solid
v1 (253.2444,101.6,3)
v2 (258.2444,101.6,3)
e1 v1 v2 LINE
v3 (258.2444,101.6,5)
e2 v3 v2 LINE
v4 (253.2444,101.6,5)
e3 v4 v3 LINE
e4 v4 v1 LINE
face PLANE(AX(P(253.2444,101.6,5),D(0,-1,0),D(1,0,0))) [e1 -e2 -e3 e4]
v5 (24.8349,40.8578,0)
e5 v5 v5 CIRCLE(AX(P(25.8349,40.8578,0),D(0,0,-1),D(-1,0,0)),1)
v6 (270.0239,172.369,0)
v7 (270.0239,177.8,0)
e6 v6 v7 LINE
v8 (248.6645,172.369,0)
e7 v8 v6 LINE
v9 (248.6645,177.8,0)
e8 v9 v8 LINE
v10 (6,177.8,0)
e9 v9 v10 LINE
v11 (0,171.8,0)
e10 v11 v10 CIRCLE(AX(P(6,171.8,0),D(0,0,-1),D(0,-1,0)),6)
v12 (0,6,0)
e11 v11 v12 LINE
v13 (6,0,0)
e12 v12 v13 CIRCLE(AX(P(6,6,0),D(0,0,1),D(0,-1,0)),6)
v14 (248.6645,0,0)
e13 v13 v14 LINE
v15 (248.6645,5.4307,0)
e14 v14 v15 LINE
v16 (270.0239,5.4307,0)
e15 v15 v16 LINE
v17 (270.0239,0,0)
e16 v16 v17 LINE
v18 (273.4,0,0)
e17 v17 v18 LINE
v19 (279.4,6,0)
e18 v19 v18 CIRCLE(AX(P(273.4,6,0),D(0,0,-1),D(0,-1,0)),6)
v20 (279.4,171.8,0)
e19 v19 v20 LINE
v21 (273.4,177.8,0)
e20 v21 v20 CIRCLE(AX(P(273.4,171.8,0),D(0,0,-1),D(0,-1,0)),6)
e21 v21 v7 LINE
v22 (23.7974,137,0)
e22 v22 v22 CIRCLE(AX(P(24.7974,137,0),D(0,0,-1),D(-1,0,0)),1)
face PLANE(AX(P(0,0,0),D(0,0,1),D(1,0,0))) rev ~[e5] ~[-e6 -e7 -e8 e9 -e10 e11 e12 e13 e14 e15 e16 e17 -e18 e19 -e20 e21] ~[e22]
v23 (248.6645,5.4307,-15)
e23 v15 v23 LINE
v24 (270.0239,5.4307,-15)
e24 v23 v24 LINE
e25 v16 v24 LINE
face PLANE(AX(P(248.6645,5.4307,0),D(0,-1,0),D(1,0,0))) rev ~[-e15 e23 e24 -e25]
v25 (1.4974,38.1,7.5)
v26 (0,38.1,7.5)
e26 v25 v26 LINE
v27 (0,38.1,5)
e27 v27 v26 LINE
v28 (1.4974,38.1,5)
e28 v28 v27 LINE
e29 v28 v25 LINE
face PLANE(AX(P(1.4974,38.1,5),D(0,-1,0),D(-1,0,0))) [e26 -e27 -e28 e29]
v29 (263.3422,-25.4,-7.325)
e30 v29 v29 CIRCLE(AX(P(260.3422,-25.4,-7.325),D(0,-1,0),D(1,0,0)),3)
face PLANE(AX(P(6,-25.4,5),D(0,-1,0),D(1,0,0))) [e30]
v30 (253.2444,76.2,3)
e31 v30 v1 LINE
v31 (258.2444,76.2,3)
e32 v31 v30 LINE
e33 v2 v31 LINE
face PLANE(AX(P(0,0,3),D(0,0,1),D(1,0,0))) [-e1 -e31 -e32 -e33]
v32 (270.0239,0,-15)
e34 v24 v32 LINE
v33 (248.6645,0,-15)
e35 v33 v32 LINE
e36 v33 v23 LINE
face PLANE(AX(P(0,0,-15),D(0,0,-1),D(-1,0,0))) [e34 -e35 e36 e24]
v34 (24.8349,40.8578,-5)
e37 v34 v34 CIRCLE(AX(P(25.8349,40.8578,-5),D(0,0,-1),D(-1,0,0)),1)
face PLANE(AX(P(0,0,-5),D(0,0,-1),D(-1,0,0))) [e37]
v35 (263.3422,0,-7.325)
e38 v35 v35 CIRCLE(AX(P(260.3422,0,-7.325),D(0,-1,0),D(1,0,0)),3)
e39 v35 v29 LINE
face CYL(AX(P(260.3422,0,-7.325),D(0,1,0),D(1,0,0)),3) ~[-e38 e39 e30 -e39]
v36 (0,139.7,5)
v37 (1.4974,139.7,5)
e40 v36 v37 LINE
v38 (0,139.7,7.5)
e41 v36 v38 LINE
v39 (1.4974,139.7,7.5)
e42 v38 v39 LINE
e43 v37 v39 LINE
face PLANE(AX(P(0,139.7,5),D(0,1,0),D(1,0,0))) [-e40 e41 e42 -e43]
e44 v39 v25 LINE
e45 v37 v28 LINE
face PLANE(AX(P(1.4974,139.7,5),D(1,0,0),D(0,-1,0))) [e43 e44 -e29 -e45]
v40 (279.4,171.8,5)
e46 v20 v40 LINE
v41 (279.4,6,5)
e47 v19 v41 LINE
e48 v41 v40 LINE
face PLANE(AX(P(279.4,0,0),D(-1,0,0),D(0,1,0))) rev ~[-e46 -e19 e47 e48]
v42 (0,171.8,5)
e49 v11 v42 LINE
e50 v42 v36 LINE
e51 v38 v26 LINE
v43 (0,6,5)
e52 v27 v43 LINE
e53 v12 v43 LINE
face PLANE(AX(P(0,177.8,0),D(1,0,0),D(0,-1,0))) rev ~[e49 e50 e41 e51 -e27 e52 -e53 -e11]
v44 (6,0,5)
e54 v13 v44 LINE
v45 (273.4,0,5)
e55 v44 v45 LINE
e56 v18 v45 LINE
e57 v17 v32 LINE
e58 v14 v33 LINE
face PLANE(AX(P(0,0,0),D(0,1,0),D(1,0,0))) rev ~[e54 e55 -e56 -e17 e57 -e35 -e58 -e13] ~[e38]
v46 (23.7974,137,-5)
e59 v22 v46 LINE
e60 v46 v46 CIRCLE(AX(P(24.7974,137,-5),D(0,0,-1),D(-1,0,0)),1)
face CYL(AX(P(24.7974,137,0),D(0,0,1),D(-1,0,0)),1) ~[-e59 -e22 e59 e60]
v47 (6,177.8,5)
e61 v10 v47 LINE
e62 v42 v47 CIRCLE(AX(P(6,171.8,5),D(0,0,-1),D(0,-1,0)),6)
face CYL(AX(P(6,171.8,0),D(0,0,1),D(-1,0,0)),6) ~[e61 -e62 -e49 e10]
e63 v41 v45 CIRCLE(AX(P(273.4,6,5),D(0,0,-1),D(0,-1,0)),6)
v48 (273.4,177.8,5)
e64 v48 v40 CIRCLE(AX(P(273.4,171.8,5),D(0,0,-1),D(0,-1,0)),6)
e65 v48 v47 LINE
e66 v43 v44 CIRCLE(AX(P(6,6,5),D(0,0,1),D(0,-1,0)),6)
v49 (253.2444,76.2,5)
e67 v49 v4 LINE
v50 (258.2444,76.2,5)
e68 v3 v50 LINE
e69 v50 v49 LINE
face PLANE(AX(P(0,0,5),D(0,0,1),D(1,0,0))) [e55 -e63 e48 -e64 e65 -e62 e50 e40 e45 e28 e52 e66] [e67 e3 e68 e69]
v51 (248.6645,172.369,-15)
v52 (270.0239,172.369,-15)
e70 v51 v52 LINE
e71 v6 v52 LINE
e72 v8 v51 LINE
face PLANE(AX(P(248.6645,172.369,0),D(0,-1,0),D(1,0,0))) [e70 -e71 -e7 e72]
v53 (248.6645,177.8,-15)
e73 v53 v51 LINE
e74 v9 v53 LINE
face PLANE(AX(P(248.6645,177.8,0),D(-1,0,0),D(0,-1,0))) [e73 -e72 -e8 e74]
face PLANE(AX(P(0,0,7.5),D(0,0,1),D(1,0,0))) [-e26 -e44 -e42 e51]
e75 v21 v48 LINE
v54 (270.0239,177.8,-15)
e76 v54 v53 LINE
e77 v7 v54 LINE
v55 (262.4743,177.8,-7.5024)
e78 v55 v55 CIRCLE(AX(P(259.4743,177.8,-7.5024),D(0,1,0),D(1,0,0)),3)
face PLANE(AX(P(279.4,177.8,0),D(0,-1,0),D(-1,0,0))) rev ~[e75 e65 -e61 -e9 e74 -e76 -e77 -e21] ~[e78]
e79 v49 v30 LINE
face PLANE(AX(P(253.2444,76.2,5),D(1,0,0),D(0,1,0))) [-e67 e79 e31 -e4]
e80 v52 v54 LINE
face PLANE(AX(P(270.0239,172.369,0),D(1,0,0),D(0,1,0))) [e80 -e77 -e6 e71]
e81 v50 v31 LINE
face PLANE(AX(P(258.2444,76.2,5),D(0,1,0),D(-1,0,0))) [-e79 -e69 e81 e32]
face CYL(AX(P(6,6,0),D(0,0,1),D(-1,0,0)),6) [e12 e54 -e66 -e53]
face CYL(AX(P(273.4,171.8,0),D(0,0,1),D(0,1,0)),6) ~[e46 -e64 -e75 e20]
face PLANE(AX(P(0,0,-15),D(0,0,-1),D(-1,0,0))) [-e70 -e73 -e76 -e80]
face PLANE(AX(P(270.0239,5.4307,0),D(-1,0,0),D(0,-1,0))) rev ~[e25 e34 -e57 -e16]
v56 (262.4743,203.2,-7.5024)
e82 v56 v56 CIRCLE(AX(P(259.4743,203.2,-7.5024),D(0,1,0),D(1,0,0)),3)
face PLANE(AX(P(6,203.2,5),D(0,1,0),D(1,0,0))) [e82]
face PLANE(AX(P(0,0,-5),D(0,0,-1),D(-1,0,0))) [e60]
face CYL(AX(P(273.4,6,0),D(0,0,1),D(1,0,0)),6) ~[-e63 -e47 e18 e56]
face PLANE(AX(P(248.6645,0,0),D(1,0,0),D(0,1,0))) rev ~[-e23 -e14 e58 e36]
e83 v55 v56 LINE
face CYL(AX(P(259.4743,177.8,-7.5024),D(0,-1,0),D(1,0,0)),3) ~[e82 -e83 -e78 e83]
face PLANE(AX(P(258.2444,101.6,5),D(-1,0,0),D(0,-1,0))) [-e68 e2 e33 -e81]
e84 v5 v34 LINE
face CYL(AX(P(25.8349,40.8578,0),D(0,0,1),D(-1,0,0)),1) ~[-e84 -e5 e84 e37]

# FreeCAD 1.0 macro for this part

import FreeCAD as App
import Part
import Sketcher

V = App.Vector
Q = App.Units.Quantity


def edges_at(feature, points):
    """Names of the edges that pass closest to the given points."""
    edges = feature.Shape.Edges
    near = lambda p: min(range(len(edges)), key=lambda i: edges[i].distToShape(Part.Vertex(*p))[0])
    return sorted({f"Edge{near(p) + 1}" for p in points})


def add_polygon(sketch, points):
    """Adds a closed chain of lines whose ends are joined by coincident constraints."""
    first, n = sketch.GeometryCount, len(points)
    for a, b in zip(points, points[1:] + points[:1]):
        sketch.addGeometry(Part.LineSegment(App.Vector(*a, 0), App.Vector(*b, 0)), False)
    for i in range(n):
        sketch.addConstraint(Sketcher.Constraint("Coincident", first + i, 2, first + (i + 1) % n, 1))

doc = App.newDocument("Part")
body = doc.addObject("PartDesign::Body", "Body")

# Sketch on XY plane
sketch1 = doc.addObject("Sketcher::SketchObject", "Sketch")
body.addObject(sketch1)
sketch1.AttachmentSupport = (doc.XY_Plane, [""])
sketch1.MapMode = "FlatFace"
add_polygon(sketch1, [(0, 177.8), (0, 0), (279.4, 0), (279.4, 177.8)])  # lines 0-3
sketch1.addConstraint(Sketcher.Constraint("Vertical", 0))
sketch1.addConstraint(Sketcher.Constraint("Horizontal", 1))
sketch1.addConstraint(Sketcher.Constraint("Vertical", 2))
sketch1.addConstraint(Sketcher.Constraint("Horizontal", 3))
sketch1.addConstraint(Sketcher.Constraint("Coincident", 0, 2, -1, 1))
sketch1.addConstraint(Sketcher.Constraint("DistanceX", 1, 1, 1, 2, Q("279.4 mm")))
sketch1.addConstraint(Sketcher.Constraint("DistanceY", 0, 2, 0, 1, Q("177.8 mm")))
pad1 = doc.addObject("PartDesign::Pad", "Pad")
body.addObject(pad1)
pad1.Profile = sketch1
pad1.Length = 5
doc.recompute()

fillet = doc.addObject("PartDesign::Fillet", "Fillet")
body.addObject(fillet)
fillet.Base = (pad1, edges_at(pad1, [
    (0, 177.8, 2.5),
    (0, 0, 2.5),
    (279.4, 0, 2.5),
    (279.4, 177.8, 2.5),
]))
fillet.Radius = 6

# Sketch on XY plane
sketch2 = doc.addObject("Sketcher::SketchObject", "Sketch001")
body.addObject(sketch2)
sketch2.AttachmentSupport = (doc.XY_Plane, [""])
sketch2.MapMode = "FlatFace"
sketch2.AttachmentOffset = App.Placement(V(0, 0, 5), App.Rotation())
add_polygon(sketch2, [(253.2444, 76.2), (258.2444, 76.2), (258.2444, 101.6), (253.2444, 101.6)])  # lines 0-3
sketch2.addConstraint(Sketcher.Constraint("Horizontal", 0))
sketch2.addConstraint(Sketcher.Constraint("Vertical", 1))
sketch2.addConstraint(Sketcher.Constraint("Horizontal", 2))
sketch2.addConstraint(Sketcher.Constraint("Vertical", 3))
sketch2.addConstraint(Sketcher.Constraint("DistanceX", 0, 1, 0, 2, Q("5 mm")))
sketch2.addConstraint(Sketcher.Constraint("DistanceY", 1, 1, 1, 2, Q("25.4 mm")))
sketch2.addConstraint(Sketcher.Constraint("DistanceY", -1, 1, 0, 2, Q("76.2 mm")))
sketch2.addConstraint(Sketcher.Constraint("DistanceX", -1, 1, 0, 2, Q("258.2444 mm")))
pocket1 = doc.addObject("PartDesign::Pocket", "Pocket")
body.addObject(pocket1)
pocket1.Profile = sketch2
pocket1.Length = 2

# Sketch on XY plane
sketch3 = doc.addObject("Sketcher::SketchObject", "Sketch002")
body.addObject(sketch3)
sketch3.AttachmentSupport = (doc.XY_Plane, [""])
sketch3.MapMode = "FlatFace"
add_polygon(sketch3, [(248.6645, 177.8), (270.0239, 177.8), (270.0239, 172.369), (248.6645, 172.369)])  # lines 0-3
add_polygon(sketch3, [(270.0239, 0), (248.6645, 0), (248.6645, 5.4307), (270.0239, 5.4307)])  # lines 4-7
sketch3.addConstraint(Sketcher.Constraint("Horizontal", 0))
sketch3.addConstraint(Sketcher.Constraint("Vertical", 1))
sketch3.addConstraint(Sketcher.Constraint("Horizontal", 2))
sketch3.addConstraint(Sketcher.Constraint("Vertical", 3))
sketch3.addConstraint(Sketcher.Constraint("Horizontal", 4))
sketch3.addConstraint(Sketcher.Constraint("Vertical", 5))
sketch3.addConstraint(Sketcher.Constraint("Horizontal", 6))
sketch3.addConstraint(Sketcher.Constraint("Vertical", 7))
sketch3.addConstraint(Sketcher.Constraint("PointOnObject", 4, 2, -1))
sketch3.addConstraint(Sketcher.Constraint("Vertical", 3, 2, 4, 2))
sketch3.addConstraint(Sketcher.Constraint("Vertical", 1, 2, 6, 2))
sketch3.addConstraint(Sketcher.Constraint("DistanceY", 1, 2, 1, 1, Q("5.431 mm")))
sketch3.addConstraint(Sketcher.Constraint("DistanceY", 5, 1, 5, 2, Q("5.4307 mm")))
sketch3.addConstraint(Sketcher.Constraint("DistanceY", -1, 1, 0, 2, Q("177.8 mm")))
sketch3.addConstraint(Sketcher.Constraint("DistanceX", 0, 1, 0, 2, Q("21.3594 mm")))
sketch3.addConstraint(Sketcher.Constraint("DistanceX", -1, 1, 0, 2, Q("270.024 mm")))
pad2 = doc.addObject("PartDesign::Pad", "Pad001")
body.addObject(pad2)
pad2.Profile = sketch3
pad2.Length = 15
pad2.Reversed = True

# Sketch on XZ plane
sketch4 = doc.addObject("Sketcher::SketchObject", "Sketch003")
body.addObject(sketch4)
sketch4.AttachmentSupport = (doc.XZ_Plane, [""])
sketch4.MapMode = "FlatFace"
sketch4.addGeometry(Part.Circle(V(260.3422, -7.325, 0), V(0, 0, 1), 3), False)
sketch4.addConstraint(Sketcher.Constraint("Diameter", 0, Q("6 mm")))
sketch4.addConstraint(Sketcher.Constraint("DistanceY", 0, 3, -1, 1, Q("7.325 mm")))
sketch4.addConstraint(Sketcher.Constraint("DistanceX", -1, 1, 0, 3, Q("260.3422 mm")))
pad3 = doc.addObject("PartDesign::Pad", "Pad002")
body.addObject(pad3)
pad3.Profile = sketch4
pad3.Length = 25.4

# Sketch on XZ plane
sketch5 = doc.addObject("Sketcher::SketchObject", "Sketch004")
body.addObject(sketch5)
sketch5.AttachmentSupport = (doc.XZ_Plane, [""])
sketch5.MapMode = "FlatFace"
sketch5.AttachmentOffset = App.Placement(V(0, 0, -177.8), App.Rotation())
sketch5.addGeometry(Part.Circle(V(259.4743, -7.5024, 0), V(0, 0, 1), 3), False)
sketch5.addConstraint(Sketcher.Constraint("Diameter", 0, Q("6 mm")))
sketch5.addConstraint(Sketcher.Constraint("DistanceX", -1, 1, 0, 3, Q("259.4743 mm")))
sketch5.addConstraint(Sketcher.Constraint("DistanceY", 0, 3, -1, 1, Q("7.5024 mm")))
pad4 = doc.addObject("PartDesign::Pad", "Pad003")
body.addObject(pad4)
pad4.Profile = sketch5
pad4.Length = 25.4
pad4.Reversed = True

# Sketch on XY plane
sketch6 = doc.addObject("Sketcher::SketchObject", "Sketch005")
body.addObject(sketch6)
sketch6.AttachmentSupport = (doc.XY_Plane, [""])
sketch6.MapMode = "FlatFace"
sketch6.AttachmentOffset = App.Placement(V(0, 0, 5), App.Rotation())
add_polygon(sketch6, [(1.4974, 139.7), (0, 139.7), (0, 38.1), (1.4974, 38.1)])  # lines 0-3
sketch6.addConstraint(Sketcher.Constraint("Horizontal", 0))
sketch6.addConstraint(Sketcher.Constraint("Vertical", 1))
sketch6.addConstraint(Sketcher.Constraint("Horizontal", 2))
sketch6.addConstraint(Sketcher.Constraint("Vertical", 3))
sketch6.addConstraint(Sketcher.Constraint("PointOnObject", 0, 2, -2))
sketch6.addConstraint(Sketcher.Constraint("DistanceY", -1, 1, 1, 2, Q("38.1 mm")))
sketch6.addConstraint(Sketcher.Constraint("DistanceY", 1, 2, 1, 1, Q("101.6 mm")))
sketch6.addConstraint(Sketcher.Constraint("DistanceX", 0, 2, 0, 1, Q("1.4974 mm")))
pad5 = doc.addObject("PartDesign::Pad", "Pad004")
body.addObject(pad5)
pad5.Profile = sketch6
pad5.Length = 2.5

# Sketch on XY plane
sketch7 = doc.addObject("Sketcher::SketchObject", "Sketch006")
body.addObject(sketch7)
sketch7.AttachmentSupport = (doc.XY_Plane, [""])
sketch7.MapMode = "FlatFace"
sketch7.addGeometry(Part.Circle(V(25.8349, 40.8578, 0), V(0, 0, 1), 1), False)
sketch7.addConstraint(Sketcher.Constraint("Diameter", 0, Q("2 mm")))
sketch7.addConstraint(Sketcher.Constraint("DistanceX", -1, 1, 0, 3, Q("25.835 mm")))
sketch7.addConstraint(Sketcher.Constraint("DistanceY", -1, 1, 0, 3, Q("40.8578 mm")))
pad6 = doc.addObject("PartDesign::Pad", "Pad005")
body.addObject(pad6)
pad6.Profile = sketch7
pad6.Length = 5
pad6.Reversed = True

# Sketch on XY plane
sketch8 = doc.addObject("Sketcher::SketchObject", "Sketch007")
body.addObject(sketch8)
sketch8.AttachmentSupport = (doc.XY_Plane, [""])
sketch8.MapMode = "FlatFace"
sketch8.addGeometry(Part.Circle(V(24.7974, 137, 0), V(0, 0, 1), 1), False)
sketch8.addConstraint(Sketcher.Constraint("Diameter", 0, Q("2 mm")))
sketch8.addConstraint(Sketcher.Constraint("DistanceY", -1, 1, 0, 3, Q("137 mm")))
sketch8.addConstraint(Sketcher.Constraint("DistanceX", -1, 1, 0, 3, Q("24.7974 mm")))
pad7 = doc.addObject("PartDesign::Pad", "Pad006")
body.addObject(pad7)
pad7.Profile = sketch8
pad7.Length = 5
pad7.Reversed = True

doc.recompute()
